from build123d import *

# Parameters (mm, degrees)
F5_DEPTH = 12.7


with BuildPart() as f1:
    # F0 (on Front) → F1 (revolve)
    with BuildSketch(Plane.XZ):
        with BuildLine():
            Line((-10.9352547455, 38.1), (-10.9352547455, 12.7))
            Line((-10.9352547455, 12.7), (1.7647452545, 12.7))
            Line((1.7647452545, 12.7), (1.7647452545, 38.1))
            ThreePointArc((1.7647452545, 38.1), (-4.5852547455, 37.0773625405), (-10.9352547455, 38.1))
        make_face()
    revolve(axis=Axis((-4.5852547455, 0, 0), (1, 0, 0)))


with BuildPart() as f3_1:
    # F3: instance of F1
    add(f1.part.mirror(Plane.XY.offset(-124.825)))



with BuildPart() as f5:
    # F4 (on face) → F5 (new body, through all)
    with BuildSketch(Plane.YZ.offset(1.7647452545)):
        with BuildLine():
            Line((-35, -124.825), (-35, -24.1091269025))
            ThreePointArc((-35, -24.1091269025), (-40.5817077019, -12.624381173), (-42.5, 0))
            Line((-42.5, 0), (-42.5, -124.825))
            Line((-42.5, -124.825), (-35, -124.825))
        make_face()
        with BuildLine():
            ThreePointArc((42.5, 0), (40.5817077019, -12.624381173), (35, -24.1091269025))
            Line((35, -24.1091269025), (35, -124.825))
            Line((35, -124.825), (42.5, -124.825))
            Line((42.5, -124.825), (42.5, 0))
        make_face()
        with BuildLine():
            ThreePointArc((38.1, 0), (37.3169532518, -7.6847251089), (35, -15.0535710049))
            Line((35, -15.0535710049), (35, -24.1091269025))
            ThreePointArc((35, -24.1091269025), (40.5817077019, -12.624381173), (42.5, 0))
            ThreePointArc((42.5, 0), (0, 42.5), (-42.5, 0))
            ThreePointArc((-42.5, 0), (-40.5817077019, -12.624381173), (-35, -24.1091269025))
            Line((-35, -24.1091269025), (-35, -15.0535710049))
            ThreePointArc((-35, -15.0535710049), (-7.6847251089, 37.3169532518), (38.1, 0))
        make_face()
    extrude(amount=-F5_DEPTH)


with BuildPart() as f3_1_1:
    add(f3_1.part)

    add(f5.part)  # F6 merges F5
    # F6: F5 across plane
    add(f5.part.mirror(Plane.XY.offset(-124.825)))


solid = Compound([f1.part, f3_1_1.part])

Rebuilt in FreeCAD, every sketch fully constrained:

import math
import FreeCAD as App
import Part
import Sketcher

V = App.Vector
Q = App.Units.Quantity

doc = App.newDocument("Part")
body = doc.addObject("PartDesign::Body", "Body")

# Sketch on XZ plane
sketch1 = body.newObject("Sketcher::SketchObject", "Sketch")
sketch1.AttachmentSupport = (doc.getObject("XZ_Plane"), [""])
sketch1.MapMode = "FlatFace"
sketch1.addGeometry(Part.LineSegment(V(-11, 38, 0), V(-11, 13, 0)), False)
sketch1.addGeometry(Part.LineSegment(V(-11, 13, 0), V(2, 13, 0)), False)
sketch1.addGeometry(Part.LineSegment(V(2, 13, 0), V(2, 38, 0)), False)
sketch1.addGeometry(Part.ArcOfCircle(Part.Circle(V(-5, 57, 0), V(0, 0, 1), 20), math.radians(-108), math.radians(-72)), False)
sketch1.addConstraint(Sketcher.Constraint("Coincident", 0, 2, 1, 1))
sketch1.addConstraint(Sketcher.Constraint("Coincident", 1, 2, 2, 1))
sketch1.addConstraint(Sketcher.Constraint("Coincident", 2, 2, 3, 2))
sketch1.addConstraint(Sketcher.Constraint("Coincident", 3, 1, 0, 1))
sketch1.addConstraint(Sketcher.Constraint("Vertical", 0))
sketch1.addConstraint(Sketcher.Constraint("Horizontal", 1))
sketch1.addConstraint(Sketcher.Constraint("Vertical", 2))
sketch1.addConstraint(Sketcher.Constraint("Horizontal", 2, 2, 3, 1))
sketch1.addConstraint(Sketcher.Constraint("DistanceY", 0, 2, 0, 1, Q("1 in")))
sketch1.addConstraint(Sketcher.Constraint("DistanceX", 1, 1, 1, 2, Q("0.5 in")))
sketch1.addConstraint(Sketcher.Constraint("DistanceY", -1, 1, 0, 2, Q("0.5 in")))
sketch1.addConstraint(Sketcher.Constraint("Radius", 3, 20.226272))
sketch1.addConstraint(Sketcher.Constraint("DistanceX", 3, 3, -1, 1, 4.585255))
revolution = body.newObject("PartDesign::Revolution", "Revolution")
revolution.Profile = sketch1
revolution.ReferenceAxis = (sketch1, ["H_Axis"])
revolution.Angle = 360
body2 = doc.addObject("PartDesign::Body", "Body001")
doc.recompute()

mirroring = doc.addObject("Part::Mirroring", "Mirroring")
mirroring.Source = body
mirroring.Base = V(0, 0, -124.825)
mirroring.Normal = V(0, 0, 1)
body2.BaseFeature = mirroring
doc.recompute()
body3 = doc.addObject("PartDesign::Body", "Body002")

# Sketch on YZ plane
sketch2 = body3.newObject("Sketcher::SketchObject", "Sketch001")
sketch2.AttachmentSupport = (doc.getObject("YZ_Plane002"), [""])
sketch2.MapMode = "FlatFace"
sketch2.AttachmentOffset = App.Placement(V(0, 0, 1.764745), App.Rotation())
sketch2.addGeometry(Part.LineSegment(V(-35, -125, 0), V(-35, -15, 0)), False)
sketch2.addGeometry(Part.ArcOfCircle(Part.Circle(V(0, 0, 0), V(0, 0, 1), 38), math.radians(0), math.radians(203)), False)
sketch2.addGeometry(Part.ArcOfCircle(Part.Circle(V(0, 0, 0), V(0, 0, 1), 38), math.radians(-23), math.radians(0)), False)
sketch2.addGeometry(Part.LineSegment(V(35, -15, 0), V(35, -125, 0)), False)
sketch2.addGeometry(Part.LineSegment(V(35, -125, 0), V(42, -125, 0)), False)
sketch2.addGeometry(Part.LineSegment(V(42, -125, 0), V(42, 0, 0)), False)
sketch2.addGeometry(Part.ArcOfCircle(Part.Circle(V(0, 0, 0), V(0, 0, 1), 42), math.radians(0), math.radians(180)), False)
sketch2.addGeometry(Part.LineSegment(V(-42, 0, 0), V(-42, -125, 0)), False)
sketch2.addGeometry(Part.LineSegment(V(-42, -125, 0), V(-35, -125, 0)), False)
sketch2.addConstraint(Sketcher.Constraint("Coincident", 0, 2, 1, 2))
sketch2.addConstraint(Sketcher.Constraint("Tangent", 1, 1, 2, 2))
sketch2.addConstraint(Sketcher.Constraint("Coincident", 2, 1, 3, 1))
sketch2.addConstraint(Sketcher.Constraint("Coincident", 3, 2, 4, 1))
sketch2.addConstraint(Sketcher.Constraint("Coincident", 4, 2, 5, 1))
sketch2.addConstraint(Sketcher.Constraint("Tangent", 5, 2, 6, 1))
sketch2.addConstraint(Sketcher.Constraint("Tangent", 6, 2, 7, 1))
sketch2.addConstraint(Sketcher.Constraint("Coincident", 7, 2, 8, 1))
sketch2.addConstraint(Sketcher.Constraint("Coincident", 8, 2, 0, 1))
sketch2.addConstraint(Sketcher.Constraint("Vertical", 0))
sketch2.addConstraint(Sketcher.Constraint("Vertical", 3))
sketch2.addConstraint(Sketcher.Constraint("Horizontal", 4))
sketch2.addConstraint(Sketcher.Constraint("Vertical", 5))
sketch2.addConstraint(Sketcher.Constraint("Vertical", 7))
sketch2.addConstraint(Sketcher.Constraint("Horizontal", 8))
sketch2.addConstraint(Sketcher.Constraint("Coincident", 1, 3, -1, 1))
sketch2.addConstraint(Sketcher.Constraint("Coincident", 6, 3, -1, 1))
sketch2.addConstraint(Sketcher.Constraint("Equal", 1, 2))
sketch2.addConstraint(Sketcher.Constraint("Symmetric", 3, 2, 8, 2, -2))
sketch2.addConstraint(Sketcher.Constraint("PointOnObject", 1, 1, -1))
sketch2.addConstraint(Sketcher.Constraint("Radius", 1, Q("1.5 in")))
sketch2.addConstraint(Sketcher.Constraint("Radius", 6, 42.5))
sketch2.addConstraint(Sketcher.Constraint("DistanceX", 4, 1, 4, 2, 7.5))
sketch2.addConstraint(Sketcher.Constraint("DistanceY", 5, 1, 5, 2, 124.825))
pad1 = body3.newObject("PartDesign::Pad", "Pad")
pad1.Profile = sketch2
pad1.Length = Q("0.5 in")
pad1.Reversed = True
body2.AllowCompound = True
doc.recompute()

body4 = doc.addObject("PartDesign::Body", "Body003")
body4.BaseFeature = body3
boolean = body2.newObject("PartDesign::Boolean", "Boolean")
boolean.Type = "Fuse"
boolean.addObjects([body4])
doc.recompute()

mirroring2 = doc.addObject("Part::Mirroring", "Mirroring001")
mirroring2.Source = body3
mirroring2.Base = V(0, 0, -124.825)
mirroring2.Normal = V(0, 0, 1)
body5 = doc.addObject("PartDesign::Body", "Body004")
body5.BaseFeature = mirroring2
boolean2 = body2.newObject("PartDesign::Boolean", "Boolean001")
boolean2.Type = "Fuse"
boolean2.addObjects([body5])
doc.recompute()
mirroring.Visibility = False
mirroring2.Visibility = False

doc.recompute()
